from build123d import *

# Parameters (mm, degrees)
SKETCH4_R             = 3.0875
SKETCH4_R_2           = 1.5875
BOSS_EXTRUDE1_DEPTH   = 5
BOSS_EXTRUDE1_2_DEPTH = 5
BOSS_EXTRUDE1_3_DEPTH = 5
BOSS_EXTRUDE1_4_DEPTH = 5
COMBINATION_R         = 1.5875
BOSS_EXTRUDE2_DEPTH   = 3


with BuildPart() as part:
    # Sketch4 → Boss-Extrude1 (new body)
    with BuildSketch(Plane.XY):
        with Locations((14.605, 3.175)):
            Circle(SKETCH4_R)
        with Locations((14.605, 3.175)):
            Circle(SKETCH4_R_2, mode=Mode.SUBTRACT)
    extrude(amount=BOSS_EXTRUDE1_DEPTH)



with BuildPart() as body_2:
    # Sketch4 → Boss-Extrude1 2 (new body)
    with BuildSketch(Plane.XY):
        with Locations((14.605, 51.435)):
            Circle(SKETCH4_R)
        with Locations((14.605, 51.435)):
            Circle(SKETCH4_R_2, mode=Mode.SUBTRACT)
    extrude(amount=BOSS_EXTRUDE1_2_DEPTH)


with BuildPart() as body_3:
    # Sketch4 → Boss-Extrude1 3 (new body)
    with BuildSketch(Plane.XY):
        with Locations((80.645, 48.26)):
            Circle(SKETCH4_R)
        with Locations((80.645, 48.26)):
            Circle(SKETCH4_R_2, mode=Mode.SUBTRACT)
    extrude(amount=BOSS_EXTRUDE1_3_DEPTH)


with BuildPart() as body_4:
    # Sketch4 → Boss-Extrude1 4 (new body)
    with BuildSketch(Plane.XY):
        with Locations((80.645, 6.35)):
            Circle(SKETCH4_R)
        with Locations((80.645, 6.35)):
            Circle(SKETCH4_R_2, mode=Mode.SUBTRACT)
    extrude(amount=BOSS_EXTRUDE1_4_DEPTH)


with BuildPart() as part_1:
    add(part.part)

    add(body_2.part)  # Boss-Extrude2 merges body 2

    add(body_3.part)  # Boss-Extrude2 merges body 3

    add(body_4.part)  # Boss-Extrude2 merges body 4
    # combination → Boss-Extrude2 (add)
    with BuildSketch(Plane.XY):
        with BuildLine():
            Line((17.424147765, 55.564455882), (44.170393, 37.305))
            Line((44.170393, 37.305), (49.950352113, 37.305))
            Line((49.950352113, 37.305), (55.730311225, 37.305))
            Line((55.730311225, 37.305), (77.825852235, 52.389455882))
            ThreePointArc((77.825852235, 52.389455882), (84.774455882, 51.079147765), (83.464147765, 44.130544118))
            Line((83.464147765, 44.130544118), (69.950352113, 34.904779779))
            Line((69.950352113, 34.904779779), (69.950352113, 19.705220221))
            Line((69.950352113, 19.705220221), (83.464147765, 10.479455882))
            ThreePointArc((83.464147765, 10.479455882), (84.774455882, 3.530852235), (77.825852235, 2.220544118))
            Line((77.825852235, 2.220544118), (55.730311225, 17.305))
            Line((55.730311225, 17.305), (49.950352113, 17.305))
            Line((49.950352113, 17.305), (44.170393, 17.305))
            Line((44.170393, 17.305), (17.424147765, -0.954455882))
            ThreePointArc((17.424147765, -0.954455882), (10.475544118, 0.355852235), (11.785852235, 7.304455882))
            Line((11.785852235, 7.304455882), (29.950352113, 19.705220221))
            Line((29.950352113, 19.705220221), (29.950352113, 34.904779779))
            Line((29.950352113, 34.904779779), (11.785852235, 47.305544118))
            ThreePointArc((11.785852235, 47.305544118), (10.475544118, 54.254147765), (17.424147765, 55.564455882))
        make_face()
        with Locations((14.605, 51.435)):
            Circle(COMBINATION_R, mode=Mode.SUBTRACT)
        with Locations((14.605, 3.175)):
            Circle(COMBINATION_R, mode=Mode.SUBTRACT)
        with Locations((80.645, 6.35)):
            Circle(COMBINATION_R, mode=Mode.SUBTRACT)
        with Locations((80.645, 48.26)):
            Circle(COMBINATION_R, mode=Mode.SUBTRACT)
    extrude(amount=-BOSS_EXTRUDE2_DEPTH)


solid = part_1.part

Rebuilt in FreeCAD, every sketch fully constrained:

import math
import FreeCAD as App
import Part
import Sketcher
Q = App.Units.Quantity

doc = App.newDocument("Part")
body = doc.addObject("PartDesign::Body", "Body")

sketch1 = body.newObject("Sketcher::SketchObject", "Sketch")
sketch1.AttachmentSupport = (doc.getObject("XY_Plane"), [""])
sketch1.MapMode = "FlatFace"
sketch1.addGeometry([
    Part.Circle(App.Vector(14.605, 3.175, 0), App.Vector(0, 0, 1), 3.0875),
    Part.Circle(App.Vector(14.605, 3.175, 0), App.Vector(0, 0, 1), 1.5875),
], False)
sketch1.addConstraint([
    Sketcher.Constraint("Coincident", 1, 3, 0, 3),
    Sketcher.Constraint("Diameter", 0, Q("6.175 mm")),
    Sketcher.Constraint("Diameter", 1, Q("3.175 mm")),
    Sketcher.Constraint("DistanceX", -1, 1, 0, 3, Q("14.605 mm")),
    Sketcher.Constraint("DistanceY", -1, 1, 0, 3, Q("3.175 mm")),
])
pad1 = body.newObject("PartDesign::Pad", "Pad")
pad1.Profile = sketch1
pad1.Length = 5
body2 = doc.addObject("PartDesign::Body", "Body001")

sketch2 = body2.newObject("Sketcher::SketchObject", "Sketch001")
sketch2.AttachmentSupport = (doc.getObject("XY_Plane001"), [""])
sketch2.MapMode = "FlatFace"
sketch2.addGeometry([
    Part.Circle(App.Vector(14.605, 51.435, 0), App.Vector(0, 0, 1), 3.0875),
    Part.Circle(App.Vector(14.605, 51.435, 0), App.Vector(0, 0, 1), 1.5875),
], False)
sketch2.addConstraint([
    Sketcher.Constraint("Coincident", 1, 3, 0, 3),
    Sketcher.Constraint("Diameter", 0, Q("6.175 mm")),
    Sketcher.Constraint("Diameter", 1, Q("3.175 mm")),
    Sketcher.Constraint("DistanceX", -1, 1, 0, 3, Q("14.605 mm")),
    Sketcher.Constraint("DistanceY", -1, 1, 0, 3, Q("51.435 mm")),
])
pad2 = body2.newObject("PartDesign::Pad", "Pad001")
pad2.Profile = sketch2
pad2.Length = 5
body3 = doc.addObject("PartDesign::Body", "Body002")

sketch3 = body3.newObject("Sketcher::SketchObject", "Sketch002")
sketch3.AttachmentSupport = (doc.getObject("XY_Plane002"), [""])
sketch3.MapMode = "FlatFace"
sketch3.addGeometry([
    Part.Circle(App.Vector(80.645, 48.26, 0), App.Vector(0, 0, 1), 3.0875),
    Part.Circle(App.Vector(80.645, 48.26, 0), App.Vector(0, 0, 1), 1.5875),
], False)
sketch3.addConstraint([
    Sketcher.Constraint("Coincident", 1, 3, 0, 3),
    Sketcher.Constraint("Diameter", 0, Q("6.175 mm")),
    Sketcher.Constraint("Diameter", 1, Q("3.175 mm")),
    Sketcher.Constraint("DistanceY", -1, 1, 0, 3, Q("48.26 mm")),
    Sketcher.Constraint("DistanceX", -1, 1, 0, 3, Q("80.645 mm")),
])
pad3 = body3.newObject("PartDesign::Pad", "Pad002")
pad3.Profile = sketch3
pad3.Length = 5
body4 = doc.addObject("PartDesign::Body", "Body003")

sketch4 = body4.newObject("Sketcher::SketchObject", "Sketch003")
sketch4.AttachmentSupport = (doc.getObject("XY_Plane003"), [""])
sketch4.MapMode = "FlatFace"
sketch4.addGeometry([
    Part.Circle(App.Vector(80.645, 6.35, 0), App.Vector(0, 0, 1), 3.0875),
    Part.Circle(App.Vector(80.645, 6.35, 0), App.Vector(0, 0, 1), 1.5875),
], False)
sketch4.addConstraint([
    Sketcher.Constraint("Coincident", 1, 3, 0, 3),
    Sketcher.Constraint("Diameter", 0, Q("6.175 mm")),
    Sketcher.Constraint("Diameter", 1, Q("3.175 mm")),
    Sketcher.Constraint("DistanceY", -1, 1, 0, 3, Q("6.35 mm")),
    Sketcher.Constraint("DistanceX", -1, 1, 0, 3, Q("80.645 mm")),
])
pad4 = body4.newObject("PartDesign::Pad", "Pad003")
pad4.Profile = sketch4
pad4.Length = 5
body.AllowCompound = True
doc.recompute()

boolean = body.newObject("PartDesign::Boolean", "Boolean")
boolean.Type = "Fuse"
boolean.addObjects([body2])
doc.recompute()

boolean2 = body.newObject("PartDesign::Boolean", "Boolean001")
boolean2.Type = "Fuse"
boolean2.addObjects([body3])
doc.recompute()

boolean3 = body.newObject("PartDesign::Boolean", "Boolean002")
boolean3.Type = "Fuse"
boolean3.addObjects([body4])

sketch5 = body.newObject("Sketcher::SketchObject", "Sketch004")
sketch5.AttachmentSupport = (doc.getObject("XY_Plane"), [""])
sketch5.MapMode = "FlatFace"
sketch5.addGeometry([
    Part.LineSegment(App.Vector(44.170393, 37.305, 0), App.Vector(17.424148, 55.564456, 0)),
    Part.ArcOfCircle(Part.Circle(App.Vector(14.605, 51.435, 0), App.Vector(0, 0, 1), 5), math.radians(55.678947), math.radians(235.678947)),
    Part.LineSegment(App.Vector(11.785852, 47.305544, 0), App.Vector(29.950352, 34.90478, 0)),
    Part.LineSegment(App.Vector(29.950352, 34.90478, 0), App.Vector(29.950352, 19.70522, 0)),
    Part.LineSegment(App.Vector(29.950352, 19.70522, 0), App.Vector(11.785852, 7.304456, 0)),
    Part.ArcOfCircle(Part.Circle(App.Vector(14.605, 3.175, 0), App.Vector(0, 0, 1), 5), math.radians(124.321053), math.radians(304.321053)),
    Part.LineSegment(App.Vector(17.424148, -0.954456, 0), App.Vector(44.170393, 17.305, 0)),
    Part.LineSegment(App.Vector(44.170393, 17.305, 0), App.Vector(55.730311, 17.305, 0)),
    Part.LineSegment(App.Vector(55.730311, 17.305, 0), App.Vector(77.825852, 2.220544, 0)),
    Part.ArcOfCircle(Part.Circle(App.Vector(80.645, 6.35, 0), App.Vector(0, 0, 1), 5), math.radians(-124.321053), math.radians(55.678947)),
    Part.LineSegment(App.Vector(83.464148, 10.479456, 0), App.Vector(69.950352, 19.70522, 0)),
    Part.LineSegment(App.Vector(69.950352, 19.70522, 0), App.Vector(69.950352, 34.90478, 0)),
    Part.LineSegment(App.Vector(69.950352, 34.90478, 0), App.Vector(83.464148, 44.130544, 0)),
    Part.ArcOfCircle(Part.Circle(App.Vector(80.645, 48.26, 0), App.Vector(0, 0, 1), 5), math.radians(-55.678947), math.radians(124.321053)),
    Part.LineSegment(App.Vector(77.825852, 52.389456, 0), App.Vector(55.730311, 37.305, 0)),
    Part.LineSegment(App.Vector(55.730311, 37.305, 0), App.Vector(44.170393, 37.305, 0)),
    Part.Circle(App.Vector(80.645, 6.35, 0), App.Vector(0, 0, 1), 1.5875),
    Part.Circle(App.Vector(14.605, 3.175, 0), App.Vector(0, 0, 1), 1.5875),
    Part.Circle(App.Vector(80.645, 48.26, 0), App.Vector(0, 0, 1), 1.5875),
    Part.Circle(App.Vector(14.605, 51.435, 0), App.Vector(0, 0, 1), 1.5875),
], False)
sketch5.addConstraint([
    Sketcher.Constraint("Tangent", 0, 2, 1, 1),
    Sketcher.Constraint("Tangent", 1, 2, 2, 1),
    Sketcher.Constraint("Coincident", 2, 2, 3, 1),
    Sketcher.Constraint("Coincident", 3, 2, 4, 1),
    Sketcher.Constraint("Tangent", 4, 2, 5, 1),
    Sketcher.Constraint("Tangent", 5, 2, 6, 1),
    Sketcher.Constraint("Coincident", 6, 2, 7, 1),
    Sketcher.Constraint("Coincident", 7, 2, 8, 1),
    Sketcher.Constraint("Tangent", 8, 2, 9, 1),
    Sketcher.Constraint("Tangent", 9, 2, 10, 1),
    Sketcher.Constraint("Coincident", 10, 2, 11, 1),
    Sketcher.Constraint("Coincident", 11, 2, 12, 1),
    Sketcher.Constraint("Tangent", 12, 2, 13, 1),
    Sketcher.Constraint("Tangent", 13, 2, 14, 1),
    Sketcher.Constraint("Coincident", 14, 2, 15, 1),
    Sketcher.Constraint("Coincident", 15, 2, 0, 1),
    Sketcher.Constraint("Vertical", 3),
    Sketcher.Constraint("Horizontal", 7),
    Sketcher.Constraint("Vertical", 11),
    Sketcher.Constraint("Horizontal", 15),
    Sketcher.Constraint("Coincident", 16, 3, 9, 3),
    Sketcher.Constraint("Coincident", 17, 3, 5, 3),
    Sketcher.Constraint("Coincident", 18, 3, 13, 3),
    Sketcher.Constraint("Coincident", 19, 3, 1, 3),
    Sketcher.Constraint("Equal", 1, 5),
    Sketcher.Constraint("Equal", 5, 9),
    Sketcher.Constraint("Equal", 9, 13),
    Sketcher.Constraint("Equal", 16, 17),
    Sketcher.Constraint("Equal", 17, 18),
    Sketcher.Constraint("Equal", 18, 19),
    Sketcher.Constraint("Parallel", 0, 2),
    Sketcher.Constraint("Parallel", 4, 6),
    Sketcher.Constraint("Parallel", 2, 8),
    Sketcher.Constraint("Parallel", 8, 10),
    Sketcher.Constraint("Parallel", 6, 12),
    Sketcher.Constraint("Parallel", 12, 14),
    Sketcher.Constraint("Horizontal", 3, 2, 10, 2),
    Sketcher.Constraint("Horizontal", 2, 2, 11, 2),
    Sketcher.Constraint("Vertical", 1, 3, 5, 3),
    Sketcher.Constraint("Vertical", 9, 3, 13, 3),
    Sketcher.Constraint("Vertical", 1, 2, 4, 2),
    Sketcher.Constraint("Vertical", 7, 2, 14, 2),
    Sketcher.Constraint("Radius", 1, Q("5 mm")),
    Sketcher.Constraint("Diameter", 16, Q("3.175 mm")),
    Sketcher.Constraint("DistanceY", 7, 2, 14, 2, Q("20 mm")),
    Sketcher.Constraint("DistanceY", -1, 1, 9, 3, Q("6.35 mm")),
    Sketcher.Constraint("DistanceY", -1, 1, 13, 3, Q("48.26 mm")),
    Sketcher.Constraint("DistanceY", 5, 3, 1, 3, Q("48.26 mm")),
    Sketcher.Constraint("DistanceX", 5, 3, 9, 3, Q("66.04 mm")),
    Sketcher.Constraint("DistanceX", -1, 1, 1, 3, Q("14.605 mm")),
    Sketcher.Constraint("DistanceX", 7, 1, 7, 2, Q("11.559918 mm")),
    Sketcher.Constraint("DistanceY", 3, 2, 3, 1, Q("15.19956 mm")),
])
pad5 = body.newObject("PartDesign::Pad", "Pad004")
pad5.Profile = sketch5
pad5.Length = 3
pad5.Reversed = True

doc.recompute()
